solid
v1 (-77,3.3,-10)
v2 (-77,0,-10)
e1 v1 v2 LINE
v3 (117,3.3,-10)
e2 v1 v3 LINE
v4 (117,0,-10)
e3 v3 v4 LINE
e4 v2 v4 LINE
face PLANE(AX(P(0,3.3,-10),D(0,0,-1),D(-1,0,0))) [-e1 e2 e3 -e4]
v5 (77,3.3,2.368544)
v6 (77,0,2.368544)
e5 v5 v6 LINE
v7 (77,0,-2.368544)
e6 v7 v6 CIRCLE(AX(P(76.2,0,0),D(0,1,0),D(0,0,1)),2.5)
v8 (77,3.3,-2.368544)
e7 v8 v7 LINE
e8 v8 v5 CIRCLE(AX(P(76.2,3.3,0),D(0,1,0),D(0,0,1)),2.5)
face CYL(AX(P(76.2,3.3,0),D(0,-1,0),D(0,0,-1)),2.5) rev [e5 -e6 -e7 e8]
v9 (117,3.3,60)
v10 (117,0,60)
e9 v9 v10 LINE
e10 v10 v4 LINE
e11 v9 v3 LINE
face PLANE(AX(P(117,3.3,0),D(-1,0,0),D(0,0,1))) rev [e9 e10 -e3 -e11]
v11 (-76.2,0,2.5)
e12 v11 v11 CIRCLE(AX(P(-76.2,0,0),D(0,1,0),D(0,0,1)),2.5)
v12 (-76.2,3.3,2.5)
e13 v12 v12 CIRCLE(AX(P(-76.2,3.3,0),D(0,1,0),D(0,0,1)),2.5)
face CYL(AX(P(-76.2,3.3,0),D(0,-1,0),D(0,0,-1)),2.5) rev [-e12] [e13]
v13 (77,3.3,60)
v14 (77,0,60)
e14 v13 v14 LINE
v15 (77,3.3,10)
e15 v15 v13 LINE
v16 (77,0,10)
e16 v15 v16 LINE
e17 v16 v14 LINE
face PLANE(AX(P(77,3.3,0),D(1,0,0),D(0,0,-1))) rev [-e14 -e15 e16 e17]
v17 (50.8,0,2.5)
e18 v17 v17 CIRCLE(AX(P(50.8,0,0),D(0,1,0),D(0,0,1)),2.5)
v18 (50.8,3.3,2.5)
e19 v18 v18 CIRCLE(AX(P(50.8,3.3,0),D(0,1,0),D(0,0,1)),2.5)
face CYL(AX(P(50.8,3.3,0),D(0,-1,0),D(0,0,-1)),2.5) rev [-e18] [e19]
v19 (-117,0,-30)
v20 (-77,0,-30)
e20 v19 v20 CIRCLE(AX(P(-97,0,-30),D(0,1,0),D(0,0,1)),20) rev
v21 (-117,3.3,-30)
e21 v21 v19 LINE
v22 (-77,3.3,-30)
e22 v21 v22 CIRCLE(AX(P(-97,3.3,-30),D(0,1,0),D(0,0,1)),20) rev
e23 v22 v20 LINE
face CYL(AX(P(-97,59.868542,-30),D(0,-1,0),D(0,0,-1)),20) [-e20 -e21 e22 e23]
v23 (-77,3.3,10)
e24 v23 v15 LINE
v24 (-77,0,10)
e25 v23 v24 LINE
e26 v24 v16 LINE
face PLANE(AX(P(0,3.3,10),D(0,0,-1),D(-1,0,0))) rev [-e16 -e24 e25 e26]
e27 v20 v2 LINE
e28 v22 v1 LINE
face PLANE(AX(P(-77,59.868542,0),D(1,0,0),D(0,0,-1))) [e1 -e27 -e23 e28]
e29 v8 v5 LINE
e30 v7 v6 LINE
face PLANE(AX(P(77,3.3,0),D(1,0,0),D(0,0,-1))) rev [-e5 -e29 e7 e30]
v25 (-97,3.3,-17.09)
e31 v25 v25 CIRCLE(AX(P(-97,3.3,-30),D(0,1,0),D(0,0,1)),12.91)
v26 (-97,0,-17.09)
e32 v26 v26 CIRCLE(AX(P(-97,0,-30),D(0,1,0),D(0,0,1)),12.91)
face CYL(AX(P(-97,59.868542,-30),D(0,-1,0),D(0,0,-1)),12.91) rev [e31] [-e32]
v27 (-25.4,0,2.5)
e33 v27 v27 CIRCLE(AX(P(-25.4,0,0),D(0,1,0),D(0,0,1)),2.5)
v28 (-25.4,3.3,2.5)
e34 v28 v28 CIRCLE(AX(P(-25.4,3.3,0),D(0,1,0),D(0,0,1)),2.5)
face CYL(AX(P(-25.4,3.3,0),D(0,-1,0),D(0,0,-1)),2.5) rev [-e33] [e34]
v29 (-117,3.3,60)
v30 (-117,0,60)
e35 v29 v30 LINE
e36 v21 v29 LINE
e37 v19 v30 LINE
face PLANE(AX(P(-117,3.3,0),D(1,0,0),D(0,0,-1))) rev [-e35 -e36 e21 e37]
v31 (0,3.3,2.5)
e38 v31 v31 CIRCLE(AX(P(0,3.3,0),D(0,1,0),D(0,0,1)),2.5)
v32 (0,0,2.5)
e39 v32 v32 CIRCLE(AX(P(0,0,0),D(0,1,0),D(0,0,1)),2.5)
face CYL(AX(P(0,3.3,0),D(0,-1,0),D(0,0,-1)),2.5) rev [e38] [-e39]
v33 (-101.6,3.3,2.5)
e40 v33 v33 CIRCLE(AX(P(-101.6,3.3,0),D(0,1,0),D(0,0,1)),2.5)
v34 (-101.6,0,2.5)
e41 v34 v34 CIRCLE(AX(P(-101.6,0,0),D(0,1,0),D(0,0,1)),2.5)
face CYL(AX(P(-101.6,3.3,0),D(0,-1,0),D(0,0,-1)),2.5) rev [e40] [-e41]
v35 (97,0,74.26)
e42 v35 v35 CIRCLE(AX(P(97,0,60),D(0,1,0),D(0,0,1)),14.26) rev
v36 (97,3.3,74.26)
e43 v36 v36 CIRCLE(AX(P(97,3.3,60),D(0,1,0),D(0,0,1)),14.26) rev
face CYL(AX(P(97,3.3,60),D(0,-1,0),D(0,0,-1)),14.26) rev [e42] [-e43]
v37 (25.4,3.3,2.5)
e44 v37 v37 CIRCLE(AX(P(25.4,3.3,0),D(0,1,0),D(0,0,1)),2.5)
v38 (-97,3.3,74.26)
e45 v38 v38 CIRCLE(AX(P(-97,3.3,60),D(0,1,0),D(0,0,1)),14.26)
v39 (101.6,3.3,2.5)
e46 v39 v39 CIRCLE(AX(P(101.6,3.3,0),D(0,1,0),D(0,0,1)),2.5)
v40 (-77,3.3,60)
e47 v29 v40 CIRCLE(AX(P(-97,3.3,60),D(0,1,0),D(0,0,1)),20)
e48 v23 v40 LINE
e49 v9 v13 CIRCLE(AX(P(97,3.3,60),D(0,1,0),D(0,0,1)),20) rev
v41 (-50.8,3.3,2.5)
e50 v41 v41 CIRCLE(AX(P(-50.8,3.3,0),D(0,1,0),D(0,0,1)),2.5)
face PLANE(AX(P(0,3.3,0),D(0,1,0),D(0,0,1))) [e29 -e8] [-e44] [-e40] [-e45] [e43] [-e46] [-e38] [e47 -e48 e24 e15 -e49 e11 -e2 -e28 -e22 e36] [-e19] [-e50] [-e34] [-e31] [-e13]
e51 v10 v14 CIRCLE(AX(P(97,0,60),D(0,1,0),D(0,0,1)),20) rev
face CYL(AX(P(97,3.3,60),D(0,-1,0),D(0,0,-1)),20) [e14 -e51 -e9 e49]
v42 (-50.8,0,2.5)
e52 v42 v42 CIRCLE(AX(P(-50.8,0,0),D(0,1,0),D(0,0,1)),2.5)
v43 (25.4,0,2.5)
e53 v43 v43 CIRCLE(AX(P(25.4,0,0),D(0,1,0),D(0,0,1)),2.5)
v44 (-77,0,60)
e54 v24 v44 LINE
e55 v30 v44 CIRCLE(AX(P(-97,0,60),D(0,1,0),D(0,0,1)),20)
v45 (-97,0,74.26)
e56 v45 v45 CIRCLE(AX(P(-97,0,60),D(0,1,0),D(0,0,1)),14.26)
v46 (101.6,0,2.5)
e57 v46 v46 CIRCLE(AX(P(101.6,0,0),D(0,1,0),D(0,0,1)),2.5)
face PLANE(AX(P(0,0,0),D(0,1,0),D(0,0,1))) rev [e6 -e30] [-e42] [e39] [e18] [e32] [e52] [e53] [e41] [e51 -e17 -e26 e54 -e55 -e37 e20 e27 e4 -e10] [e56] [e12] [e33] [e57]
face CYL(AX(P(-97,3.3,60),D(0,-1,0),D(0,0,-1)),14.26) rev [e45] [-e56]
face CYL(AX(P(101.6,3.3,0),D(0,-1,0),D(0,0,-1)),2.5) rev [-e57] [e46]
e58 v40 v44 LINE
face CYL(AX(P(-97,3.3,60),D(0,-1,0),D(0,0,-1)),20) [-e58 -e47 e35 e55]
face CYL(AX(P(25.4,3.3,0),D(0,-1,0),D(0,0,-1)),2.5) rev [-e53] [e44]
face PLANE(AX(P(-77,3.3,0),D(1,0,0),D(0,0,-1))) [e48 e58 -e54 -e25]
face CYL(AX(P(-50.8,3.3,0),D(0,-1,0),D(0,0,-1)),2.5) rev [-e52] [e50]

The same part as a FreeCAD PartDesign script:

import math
import FreeCAD as App
import Part
import Sketcher

V = App.Vector
Q = App.Units.Quantity

doc = App.newDocument("Part")
body = doc.addObject("PartDesign::Body", "Body")

sketch1 = body.newObject("Sketcher::SketchObject", "Sketch")
sketch1.AttachmentSupport = (doc.getObject("XZ_Plane"), [""])
sketch1.MapMode = "FlatFace"
sketch1.addGeometry([
    Part.LineSegment(V(-117, -10, 0), V(-117, 60, 0)),
    Part.ArcOfCircle(Part.Circle(V(-97, 60, 0), V(0, 0, 1), 20), math.radians(0), math.radians(180)),
    Part.LineSegment(V(-77, 60, 0), V(-77, 10, 0)),
    Part.LineSegment(V(-77, 10, 0), V(77, 10, 0)),
    Part.LineSegment(V(77, 10, 0), V(77, 60, 0)),
    Part.ArcOfCircle(Part.Circle(V(97, 60, 0), V(0, 0, 1), 20), math.radians(0), math.radians(180)),
    Part.LineSegment(V(117, 60, 0), V(117, -10, 0)),
    Part.LineSegment(V(117, -10, 0), V(-117, -10, 0)),
    Part.Circle(V(-97, 60, 0), V(0, 0, 1), 14.3),
    Part.Circle(V(97, 60, 0), V(0, 0, 1), 14.3),
    Part.Circle(V(-101.6, 0, 0), V(0, 0, 1), 2.5),
    Part.Circle(V(-76.2, 0, 0), V(0, 0, 1), 2.5),
    Part.Circle(V(-50.8, 0, 0), V(0, 0, 1), 2.5),
    Part.Circle(V(-25.4, 0, 0), V(0, 0, 1), 2.5),
    Part.Circle(V(0, 0, 0), V(0, 0, 1), 2.5),
    Part.Circle(V(25.4, 0, 0), V(0, 0, 1), 2.5),
    Part.Circle(V(50.8, 0, 0), V(0, 0, 1), 2.5),
    Part.LineSegment(V(77, -2.4, 0), V(77, 2.4, 0)),
    Part.ArcOfCircle(Part.Circle(V(76.2, 0, 0), V(0, 0, 1), 2.5), math.radians(71), math.radians(289)),
    Part.Circle(V(101.6, 0, 0), V(0, 0, 1), 2.5),
], False)
sketch1.addConstraint([
    Sketcher.Constraint("Tangent", 0, 2, 1, 2),
    Sketcher.Constraint("Tangent", 1, 1, 2, 1),
    Sketcher.Constraint("Coincident", 2, 2, 3, 1),
    Sketcher.Constraint("Coincident", 3, 2, 4, 1),
    Sketcher.Constraint("Tangent", 4, 2, 5, 2),
    Sketcher.Constraint("Tangent", 5, 1, 6, 1),
    Sketcher.Constraint("Coincident", 6, 2, 7, 1),
    Sketcher.Constraint("Coincident", 7, 2, 0, 1),
    Sketcher.Constraint("Coincident", 17, 1, 18, 2),
    Sketcher.Constraint("Coincident", 18, 1, 17, 2),
    Sketcher.Constraint("Vertical", 0),
    Sketcher.Constraint("Vertical", 2),
    Sketcher.Constraint("Horizontal", 3),
    Sketcher.Constraint("Vertical", 4),
    Sketcher.Constraint("Vertical", 6),
    Sketcher.Constraint("Horizontal", 7),
    Sketcher.Constraint("Vertical", 17),
    Sketcher.Constraint("Coincident", 14, 3, -1, 1),
    Sketcher.Constraint("Coincident", 8, 3, 1, 3),
    Sketcher.Constraint("Coincident", 9, 3, 5, 3),
    Sketcher.Constraint("Equal", 1, 5),
    Sketcher.Constraint("Equal", 8, 9),
    Sketcher.Constraint("Equal", 10, 11),
    Sketcher.Constraint("Equal", 11, 12),
    Sketcher.Constraint("Equal", 12, 13),
    Sketcher.Constraint("Equal", 13, 14),
    Sketcher.Constraint("Equal", 14, 15),
    Sketcher.Constraint("Equal", 15, 16),
    Sketcher.Constraint("Equal", 16, 18),
    Sketcher.Constraint("Equal", 18, 19),
    Sketcher.Constraint("Symmetric", 13, 3, 15, 3, -1, 1),
    Sketcher.Constraint("Symmetric", 12, 3, 16, 3, -1, 1),
    Sketcher.Constraint("Symmetric", 11, 3, 18, 3, -1, 1),
    Sketcher.Constraint("Symmetric", 10, 3, 19, 3, -1, 1),
    Sketcher.Constraint("Symmetric", 1, 3, 5, 3, -2),
    Sketcher.Constraint("PointOnObject", 10, 3, -1),
    Sketcher.Constraint("PointOnObject", 11, 3, -1),
    Sketcher.Constraint("PointOnObject", 12, 3, -1),
    Sketcher.Constraint("PointOnObject", 13, 3, -1),
    Sketcher.Constraint("Vertical", 4, 2, 17, 1),
    Sketcher.Constraint("Diameter", 10, Q("5 mm")),
    Sketcher.Constraint("Radius", 1, Q("20 mm")),
    Sketcher.Constraint("Diameter", 8, Q("28.52 mm")),
    Sketcher.Constraint("DistanceX", 3, 1, 3, 2, Q("154 mm")),
    Sketcher.Constraint("DistanceY", 0, 1, 0, 2, Q("70 mm")),
    Sketcher.Constraint("DistanceY", 2, 2, 2, 1, Q("50 mm")),
    Sketcher.Constraint("DistanceY", -1, 1, 1, 3, Q("60 mm")),
    Sketcher.Constraint("DistanceX", 10, 3, -1, 1, Q("101.6 mm")),
    Sketcher.Constraint("DistanceX", 11, 3, -1, 1, Q("76.2 mm")),
    Sketcher.Constraint("DistanceX", 12, 3, -1, 1, Q("50.8 mm")),
    Sketcher.Constraint("DistanceX", 13, 3, -1, 1, Q("25.4 mm")),
])
pad1 = body.newObject("PartDesign::Pad", "Pad")
pad1.Profile = sketch1
pad1.Length = 3.3
pad1.Reversed = True

sketch2 = body.newObject("Sketcher::SketchObject", "Sketch001")
sketch2.AttachmentSupport = (doc.getObject("XZ_Plane"), [""])
sketch2.MapMode = "FlatFace"
sketch2.addGeometry([
    Part.LineSegment(V(-117, -30, 0), V(-117, -10, 0)),
    Part.LineSegment(V(-117, -10, 0), V(-77, -10, 0)),
    Part.LineSegment(V(-77, -10, 0), V(-77, -30, 0)),
    Part.ArcOfCircle(Part.Circle(V(-97, -30, 0), V(0, 0, 1), 20), math.radians(180), math.radians(360)),
    Part.Circle(V(-97, -30, 0), V(0, 0, 1), 13),
], False)
sketch2.addConstraint([
    Sketcher.Constraint("Coincident", 0, 2, 1, 1),
    Sketcher.Constraint("Coincident", 1, 2, 2, 1),
    Sketcher.Constraint("Tangent", 2, 2, 3, 2),
    Sketcher.Constraint("Tangent", 3, 1, 0, 1),
    Sketcher.Constraint("Vertical", 0),
    Sketcher.Constraint("Horizontal", 1),
    Sketcher.Constraint("Vertical", 2),
    Sketcher.Constraint("Coincident", 4, 3, 3, 3),
    Sketcher.Constraint("Radius", 3, Q("20 mm")),
    Sketcher.Constraint("Diameter", 4, Q("25.82 mm")),
    Sketcher.Constraint("DistanceY", 0, 1, 0, 2, Q("20 mm")),
    Sketcher.Constraint("DistanceX", 3, 3, -1, 1, Q("97 mm")),
    Sketcher.Constraint("DistanceY", 3, 3, -1, 1, Q("30 mm")),
])
pad2 = body.newObject("PartDesign::Pad", "Pad001")
pad2.Profile = sketch2
pad2.Length = 3.3
pad2.Reversed = True

doc.recompute()
